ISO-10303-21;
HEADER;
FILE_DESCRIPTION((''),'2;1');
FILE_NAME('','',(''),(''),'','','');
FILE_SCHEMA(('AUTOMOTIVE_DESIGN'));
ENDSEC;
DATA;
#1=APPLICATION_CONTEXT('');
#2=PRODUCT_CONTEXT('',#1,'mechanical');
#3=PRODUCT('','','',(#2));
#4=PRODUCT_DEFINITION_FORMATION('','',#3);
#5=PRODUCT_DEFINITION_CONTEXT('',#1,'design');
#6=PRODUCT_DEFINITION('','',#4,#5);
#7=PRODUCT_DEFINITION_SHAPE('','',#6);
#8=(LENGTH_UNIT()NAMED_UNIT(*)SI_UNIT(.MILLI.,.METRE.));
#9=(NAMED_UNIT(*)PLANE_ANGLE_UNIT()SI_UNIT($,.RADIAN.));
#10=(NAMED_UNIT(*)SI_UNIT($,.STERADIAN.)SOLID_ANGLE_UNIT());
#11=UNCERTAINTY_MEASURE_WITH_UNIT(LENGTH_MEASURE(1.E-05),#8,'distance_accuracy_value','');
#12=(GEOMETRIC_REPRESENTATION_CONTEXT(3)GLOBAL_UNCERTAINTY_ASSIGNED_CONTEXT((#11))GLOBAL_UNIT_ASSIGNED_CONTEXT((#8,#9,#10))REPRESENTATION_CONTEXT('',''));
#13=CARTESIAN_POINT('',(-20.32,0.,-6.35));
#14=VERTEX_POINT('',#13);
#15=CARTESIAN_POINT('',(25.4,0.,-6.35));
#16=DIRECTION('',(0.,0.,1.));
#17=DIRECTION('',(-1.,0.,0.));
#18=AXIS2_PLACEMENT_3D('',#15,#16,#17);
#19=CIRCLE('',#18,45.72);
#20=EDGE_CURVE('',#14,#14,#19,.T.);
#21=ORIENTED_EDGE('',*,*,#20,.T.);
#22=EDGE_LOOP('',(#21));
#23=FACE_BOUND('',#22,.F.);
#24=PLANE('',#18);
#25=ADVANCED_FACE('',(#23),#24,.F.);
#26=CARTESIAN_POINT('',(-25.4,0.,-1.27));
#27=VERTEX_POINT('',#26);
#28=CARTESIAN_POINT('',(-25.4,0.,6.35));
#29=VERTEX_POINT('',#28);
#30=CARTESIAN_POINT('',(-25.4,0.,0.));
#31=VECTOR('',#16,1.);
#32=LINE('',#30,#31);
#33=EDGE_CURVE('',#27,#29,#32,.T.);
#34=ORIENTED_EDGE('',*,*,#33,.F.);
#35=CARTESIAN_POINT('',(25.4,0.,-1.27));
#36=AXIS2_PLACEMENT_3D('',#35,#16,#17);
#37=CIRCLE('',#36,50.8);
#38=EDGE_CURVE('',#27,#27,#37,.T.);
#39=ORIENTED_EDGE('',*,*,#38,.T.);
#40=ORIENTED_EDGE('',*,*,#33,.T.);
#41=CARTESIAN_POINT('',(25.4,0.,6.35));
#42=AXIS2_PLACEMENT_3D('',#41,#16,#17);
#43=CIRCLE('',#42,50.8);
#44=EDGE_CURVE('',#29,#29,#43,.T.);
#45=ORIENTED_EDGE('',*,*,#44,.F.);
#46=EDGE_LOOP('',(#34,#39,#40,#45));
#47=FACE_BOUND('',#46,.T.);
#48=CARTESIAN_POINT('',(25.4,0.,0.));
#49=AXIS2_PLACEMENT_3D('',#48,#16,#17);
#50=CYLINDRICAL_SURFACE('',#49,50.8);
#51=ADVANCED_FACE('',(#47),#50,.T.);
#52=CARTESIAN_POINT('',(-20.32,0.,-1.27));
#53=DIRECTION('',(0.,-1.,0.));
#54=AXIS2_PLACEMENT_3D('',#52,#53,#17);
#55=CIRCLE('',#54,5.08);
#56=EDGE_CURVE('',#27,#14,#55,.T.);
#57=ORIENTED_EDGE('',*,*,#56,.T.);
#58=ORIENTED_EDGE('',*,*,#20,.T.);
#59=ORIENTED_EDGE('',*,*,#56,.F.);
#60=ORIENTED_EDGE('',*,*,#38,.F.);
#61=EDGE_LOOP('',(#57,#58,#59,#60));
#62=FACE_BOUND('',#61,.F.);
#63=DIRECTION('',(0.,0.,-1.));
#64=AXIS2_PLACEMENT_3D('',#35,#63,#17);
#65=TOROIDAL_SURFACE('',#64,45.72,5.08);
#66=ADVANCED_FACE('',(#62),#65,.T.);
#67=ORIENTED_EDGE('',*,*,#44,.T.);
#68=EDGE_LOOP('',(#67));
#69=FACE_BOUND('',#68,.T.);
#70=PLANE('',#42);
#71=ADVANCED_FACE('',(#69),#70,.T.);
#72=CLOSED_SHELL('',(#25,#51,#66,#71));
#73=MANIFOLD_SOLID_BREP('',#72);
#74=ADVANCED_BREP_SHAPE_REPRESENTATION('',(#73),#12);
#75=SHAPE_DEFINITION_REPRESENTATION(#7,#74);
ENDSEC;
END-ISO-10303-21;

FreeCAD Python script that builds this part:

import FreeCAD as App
import Part
import Sketcher

V = App.Vector
Q = App.Units.Quantity


def edges_at(feature, points):
    """Names of the edges that pass closest to the given points."""
    edges = feature.Shape.Edges
    near = lambda p: min(range(len(edges)), key=lambda i: edges[i].distToShape(Part.Vertex(*p))[0])
    return sorted({f"Edge{near(p) + 1}" for p in points})

doc = App.newDocument("Part")
params = doc.addObject("Spreadsheet::Sheet", "Params")
for row, (alias, value) in enumerate([
    ("sketch1_width", "2 in"),
    ("sketch1_height", "0.5 in"),
    ("revolution_angle", "360 deg"),
    ("fillet_radius", "0.2 in"),
], start=1):
    params.set(f"A{row}", alias)
    params.set(f"B{row}", "=" + value)
    params.setAlias(f"B{row}", alias)

body = doc.addObject("PartDesign::Body", "Body")

# Sketch on XZ plane
sketch1 = doc.addObject("Sketcher::SketchObject", "Sketch")
body.addObject(sketch1)
sketch1.AttachmentSupport = (doc.XZ_Plane, [""])
sketch1.MapMode = "FlatFace"
sketch1.addGeometry([
    Part.LineSegment(V(-25.4, 6.35, 0), V(-25.4, -6.35, 0)),
    Part.LineSegment(V(-25.4, -6.35, 0), V(25.4, -6.35, 0)),
    Part.LineSegment(V(25.4, -6.35, 0), V(25.4, 6.35, 0)),
    Part.LineSegment(V(25.4, 6.35, 0), V(-25.4, 6.35, 0)),
], False)
sketch1.addGeometry(Part.LineSegment(V(25.4, -6.35, 0), V(25.4, 6.35, 0)), True)  # axis
sketch1.addConstraint([
    Sketcher.Constraint("Coincident", 0, 2, 1, 1),
    Sketcher.Constraint("Coincident", 1, 2, 2, 1),
    Sketcher.Constraint("Coincident", 2, 2, 3, 1),
    Sketcher.Constraint("Coincident", 3, 2, 0, 1),
    Sketcher.Constraint("Vertical", 0),
    Sketcher.Constraint("Horizontal", 1),
    Sketcher.Constraint("Vertical", 2),
    Sketcher.Constraint("Horizontal", 3),
    Sketcher.Constraint("Vertical", 4),
    Sketcher.Constraint("Coincident", 4, 1, 1, 2),
    Sketcher.Constraint("Symmetric", 0, 2, 2, 2, -1, 1),
    Sketcher.Constraint("Horizontal", 3, 2, 4, 2),
    Sketcher.Constraint("DistanceX", 1, 1, 1, 2, Q("2 in")),
    Sketcher.Constraint("DistanceY", 0, 2, 0, 1, Q("0.5 in")),
])
sketch1.setExpression("Constraints[12]", "Params.sketch1_width")
sketch1.setExpression("Constraints[13]", "Params.sketch1_height")
revolution = doc.addObject("PartDesign::Revolution", "Revolution")
body.addObject(revolution)
revolution.Profile = sketch1
revolution.ReferenceAxis = (sketch1, ["Axis0"])
revolution.setExpression("Angle", "Params.revolution_angle")
doc.recompute()

fillet = doc.addObject("PartDesign::Fillet", "Fillet")
body.addObject(fillet)
fillet.Base = (revolution, edges_at(revolution, [(76.2, 0, -6.35)]))
fillet.setExpression("Radius", "Params.fillet_radius")

doc.recompute()
